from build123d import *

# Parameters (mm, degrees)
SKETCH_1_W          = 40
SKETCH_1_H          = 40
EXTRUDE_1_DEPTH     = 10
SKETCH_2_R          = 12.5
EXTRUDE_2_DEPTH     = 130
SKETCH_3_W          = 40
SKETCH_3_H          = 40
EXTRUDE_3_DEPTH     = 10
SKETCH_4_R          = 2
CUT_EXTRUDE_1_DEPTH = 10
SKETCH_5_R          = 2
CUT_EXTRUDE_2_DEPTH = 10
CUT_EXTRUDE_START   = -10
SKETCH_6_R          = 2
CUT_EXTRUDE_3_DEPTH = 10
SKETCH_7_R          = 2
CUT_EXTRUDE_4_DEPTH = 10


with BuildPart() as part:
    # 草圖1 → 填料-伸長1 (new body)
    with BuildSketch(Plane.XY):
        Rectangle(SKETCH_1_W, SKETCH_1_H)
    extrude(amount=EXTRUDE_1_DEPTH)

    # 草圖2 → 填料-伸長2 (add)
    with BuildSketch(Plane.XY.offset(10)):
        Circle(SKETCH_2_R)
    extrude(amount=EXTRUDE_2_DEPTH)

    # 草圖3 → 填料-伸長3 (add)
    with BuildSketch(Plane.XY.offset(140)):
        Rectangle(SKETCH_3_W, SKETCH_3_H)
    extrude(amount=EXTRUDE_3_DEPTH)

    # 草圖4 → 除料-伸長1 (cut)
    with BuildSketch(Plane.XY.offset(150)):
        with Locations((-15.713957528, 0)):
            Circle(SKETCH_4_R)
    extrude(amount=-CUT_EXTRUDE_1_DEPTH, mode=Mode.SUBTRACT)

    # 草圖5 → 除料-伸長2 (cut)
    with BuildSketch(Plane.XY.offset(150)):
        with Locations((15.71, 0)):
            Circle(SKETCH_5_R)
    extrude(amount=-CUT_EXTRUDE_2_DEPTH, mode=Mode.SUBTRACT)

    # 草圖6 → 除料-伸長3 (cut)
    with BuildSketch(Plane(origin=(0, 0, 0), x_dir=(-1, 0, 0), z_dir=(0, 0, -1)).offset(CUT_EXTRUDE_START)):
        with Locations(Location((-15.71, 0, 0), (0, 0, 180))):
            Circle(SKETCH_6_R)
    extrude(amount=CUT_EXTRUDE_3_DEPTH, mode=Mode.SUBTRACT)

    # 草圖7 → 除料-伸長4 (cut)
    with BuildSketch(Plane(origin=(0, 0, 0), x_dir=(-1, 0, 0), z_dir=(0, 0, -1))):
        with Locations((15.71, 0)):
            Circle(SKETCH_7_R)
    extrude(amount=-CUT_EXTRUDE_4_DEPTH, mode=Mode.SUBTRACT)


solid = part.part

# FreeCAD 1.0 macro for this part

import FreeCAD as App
import Part
import Sketcher
from FreeCAD import Vector

doc = App.newDocument("Part")
body = doc.addObject("PartDesign::Body", "Body")

# Sketch on XY plane
sketch1 = doc.addObject("Sketcher::SketchObject", "Sketch")
body.addObject(sketch1)
sketch1.AttachmentSupport = (doc.XY_Plane, [""])
sketch1.MapMode = "FlatFace"
sketch1.addGeometry([
    Part.LineSegment(Vector(-20, 20, 0), Vector(-20, -20, 0)),
    Part.LineSegment(Vector(-20, -20, 0), Vector(20, -20, 0)),
    Part.LineSegment(Vector(20, -20, 0), Vector(20, 20, 0)),
    Part.LineSegment(Vector(20, 20, 0), Vector(-20, 20, 0)),
], False)
sketch1.addConstraint([
    Sketcher.Constraint("Coincident", 0, 2, 1, 1),
    Sketcher.Constraint("Coincident", 1, 2, 2, 1),
    Sketcher.Constraint("Coincident", 2, 2, 3, 1),
    Sketcher.Constraint("Coincident", 3, 2, 0, 1),
    Sketcher.Constraint("Vertical", 0),
    Sketcher.Constraint("Horizontal", 1),
    Sketcher.Constraint("Vertical", 2),
    Sketcher.Constraint("Horizontal", 3),
    Sketcher.Constraint("Symmetric", 0, 2, 2, 2, -1, 1),
    Sketcher.Constraint("Equal", 3, 0),
    Sketcher.Constraint("DistanceX", 1, 1, 1, 2, 40.0),
])
pad1 = doc.addObject("PartDesign::Pad", "Pad")
body.addObject(pad1)
pad1.Profile = sketch1
pad1.Length = 10

# Sketch on XY plane
sketch2 = doc.addObject("Sketcher::SketchObject", "Sketch001")
body.addObject(sketch2)
sketch2.AttachmentSupport = (doc.XY_Plane, [""])
sketch2.MapMode = "FlatFace"
sketch2.AttachmentOffset = App.Placement(Vector(0, 0, 10), App.Rotation())
sketch2.addGeometry(Part.Circle(Vector(0, 0, 0), Vector(0, 0, 1), 12.5), False)
sketch2.addConstraint([
    Sketcher.Constraint("Coincident", 0, 3, -1, 1),
    Sketcher.Constraint("Diameter", 0, 25.0),
])
pad2 = doc.addObject("PartDesign::Pad", "Pad001")
body.addObject(pad2)
pad2.Profile = sketch2
pad2.Length = 130

# Sketch on XY plane
sketch3 = doc.addObject("Sketcher::SketchObject", "Sketch002")
body.addObject(sketch3)
sketch3.AttachmentSupport = (doc.XY_Plane, [""])
sketch3.MapMode = "FlatFace"
sketch3.AttachmentOffset = App.Placement(Vector(0, 0, 140), App.Rotation())
sketch3.addGeometry([
    Part.LineSegment(Vector(-20, 20, 0), Vector(-20, -20, 0)),
    Part.LineSegment(Vector(-20, -20, 0), Vector(20, -20, 0)),
    Part.LineSegment(Vector(20, -20, 0), Vector(20, 20, 0)),
    Part.LineSegment(Vector(20, 20, 0), Vector(-20, 20, 0)),
], False)
sketch3.addConstraint([
    Sketcher.Constraint("Coincident", 0, 2, 1, 1),
    Sketcher.Constraint("Coincident", 1, 2, 2, 1),
    Sketcher.Constraint("Coincident", 2, 2, 3, 1),
    Sketcher.Constraint("Coincident", 3, 2, 0, 1),
    Sketcher.Constraint("Vertical", 0),
    Sketcher.Constraint("Horizontal", 1),
    Sketcher.Constraint("Vertical", 2),
    Sketcher.Constraint("Horizontal", 3),
    Sketcher.Constraint("Symmetric", 0, 2, 2, 2, -1, 1),
    Sketcher.Constraint("Equal", 3, 0),
    Sketcher.Constraint("DistanceX", 1, 1, 1, 2, 40.0),
])
pad3 = doc.addObject("PartDesign::Pad", "Pad002")
body.addObject(pad3)
pad3.Profile = sketch3
pad3.Length = 10

# Sketch on XY plane
sketch4 = doc.addObject("Sketcher::SketchObject", "Sketch003")
body.addObject(sketch4)
sketch4.AttachmentSupport = (doc.XY_Plane, [""])
sketch4.MapMode = "FlatFace"
sketch4.AttachmentOffset = App.Placement(Vector(0, 0, 150), App.Rotation())
sketch4.addGeometry(Part.Circle(Vector(-15.713958, 0, 0), Vector(0, 0, 1), 2), False)
sketch4.addConstraint([
    Sketcher.Constraint("PointOnObject", 0, 3, -1),
    Sketcher.Constraint("Diameter", 0, 4.0),
    Sketcher.Constraint("DistanceX", 0, 3, -1, 1, 15.713958),
])
pocket1 = doc.addObject("PartDesign::Pocket", "Pocket")
body.addObject(pocket1)
pocket1.Profile = sketch4
pocket1.Length = 10

# Sketch on XY plane
sketch5 = doc.addObject("Sketcher::SketchObject", "Sketch004")
body.addObject(sketch5)
sketch5.AttachmentSupport = (doc.XY_Plane, [""])
sketch5.MapMode = "FlatFace"
sketch5.AttachmentOffset = App.Placement(Vector(0, 0, 150), App.Rotation())
sketch5.addGeometry(Part.Circle(Vector(15.71, 0, 0), Vector(0, 0, 1), 2), False)
sketch5.addConstraint([
    Sketcher.Constraint("PointOnObject", 0, 3, -1),
    Sketcher.Constraint("Diameter", 0, 4.0),
    Sketcher.Constraint("DistanceX", -1, 1, 0, 3, 15.71),
])
pocket2 = doc.addObject("PartDesign::Pocket", "Pocket001")
body.addObject(pocket2)
pocket2.Profile = sketch5
pocket2.Length = 10

# Sketch on XY plane
sketch6 = doc.addObject("Sketcher::SketchObject", "Sketch005")
body.addObject(sketch6)
sketch6.AttachmentSupport = (doc.XY_Plane, [""])
sketch6.MapMode = "FlatFace"
sketch6.AttachmentOffset = App.Placement(Vector(0, 0, 10), App.Rotation())
sketch6.addGeometry(Part.Circle(Vector(15.71, 0, 0), Vector(0, 0, 1), 2), False)
sketch6.addConstraint([
    Sketcher.Constraint("PointOnObject", 0, 3, -1),
    Sketcher.Constraint("Diameter", 0, 4.0),
    Sketcher.Constraint("DistanceX", -1, 1, 0, 3, 15.71),
])
pocket3 = doc.addObject("PartDesign::Pocket", "Pocket002")
body.addObject(pocket3)
pocket3.Profile = sketch6
pocket3.Length = 10

# Sketch on XY plane
sketch7 = doc.addObject("Sketcher::SketchObject", "Sketch006")
body.addObject(sketch7)
sketch7.AttachmentSupport = (doc.XY_Plane, [""])
sketch7.MapMode = "FlatFace"
sketch7.addGeometry(Part.Circle(Vector(-15.71, 0, 0), Vector(0, 0, 1), 2), False)
sketch7.addConstraint([
    Sketcher.Constraint("PointOnObject", 0, 3, -1),
    Sketcher.Constraint("Diameter", 0, 4.0),
    Sketcher.Constraint("DistanceX", 0, 3, -1, 1, 15.71),
])
pocket4 = doc.addObject("PartDesign::Pocket", "Pocket003")
body.addObject(pocket4)
pocket4.Profile = sketch7
pocket4.Length = 10
pocket4.Reversed = True

doc.recompute()
